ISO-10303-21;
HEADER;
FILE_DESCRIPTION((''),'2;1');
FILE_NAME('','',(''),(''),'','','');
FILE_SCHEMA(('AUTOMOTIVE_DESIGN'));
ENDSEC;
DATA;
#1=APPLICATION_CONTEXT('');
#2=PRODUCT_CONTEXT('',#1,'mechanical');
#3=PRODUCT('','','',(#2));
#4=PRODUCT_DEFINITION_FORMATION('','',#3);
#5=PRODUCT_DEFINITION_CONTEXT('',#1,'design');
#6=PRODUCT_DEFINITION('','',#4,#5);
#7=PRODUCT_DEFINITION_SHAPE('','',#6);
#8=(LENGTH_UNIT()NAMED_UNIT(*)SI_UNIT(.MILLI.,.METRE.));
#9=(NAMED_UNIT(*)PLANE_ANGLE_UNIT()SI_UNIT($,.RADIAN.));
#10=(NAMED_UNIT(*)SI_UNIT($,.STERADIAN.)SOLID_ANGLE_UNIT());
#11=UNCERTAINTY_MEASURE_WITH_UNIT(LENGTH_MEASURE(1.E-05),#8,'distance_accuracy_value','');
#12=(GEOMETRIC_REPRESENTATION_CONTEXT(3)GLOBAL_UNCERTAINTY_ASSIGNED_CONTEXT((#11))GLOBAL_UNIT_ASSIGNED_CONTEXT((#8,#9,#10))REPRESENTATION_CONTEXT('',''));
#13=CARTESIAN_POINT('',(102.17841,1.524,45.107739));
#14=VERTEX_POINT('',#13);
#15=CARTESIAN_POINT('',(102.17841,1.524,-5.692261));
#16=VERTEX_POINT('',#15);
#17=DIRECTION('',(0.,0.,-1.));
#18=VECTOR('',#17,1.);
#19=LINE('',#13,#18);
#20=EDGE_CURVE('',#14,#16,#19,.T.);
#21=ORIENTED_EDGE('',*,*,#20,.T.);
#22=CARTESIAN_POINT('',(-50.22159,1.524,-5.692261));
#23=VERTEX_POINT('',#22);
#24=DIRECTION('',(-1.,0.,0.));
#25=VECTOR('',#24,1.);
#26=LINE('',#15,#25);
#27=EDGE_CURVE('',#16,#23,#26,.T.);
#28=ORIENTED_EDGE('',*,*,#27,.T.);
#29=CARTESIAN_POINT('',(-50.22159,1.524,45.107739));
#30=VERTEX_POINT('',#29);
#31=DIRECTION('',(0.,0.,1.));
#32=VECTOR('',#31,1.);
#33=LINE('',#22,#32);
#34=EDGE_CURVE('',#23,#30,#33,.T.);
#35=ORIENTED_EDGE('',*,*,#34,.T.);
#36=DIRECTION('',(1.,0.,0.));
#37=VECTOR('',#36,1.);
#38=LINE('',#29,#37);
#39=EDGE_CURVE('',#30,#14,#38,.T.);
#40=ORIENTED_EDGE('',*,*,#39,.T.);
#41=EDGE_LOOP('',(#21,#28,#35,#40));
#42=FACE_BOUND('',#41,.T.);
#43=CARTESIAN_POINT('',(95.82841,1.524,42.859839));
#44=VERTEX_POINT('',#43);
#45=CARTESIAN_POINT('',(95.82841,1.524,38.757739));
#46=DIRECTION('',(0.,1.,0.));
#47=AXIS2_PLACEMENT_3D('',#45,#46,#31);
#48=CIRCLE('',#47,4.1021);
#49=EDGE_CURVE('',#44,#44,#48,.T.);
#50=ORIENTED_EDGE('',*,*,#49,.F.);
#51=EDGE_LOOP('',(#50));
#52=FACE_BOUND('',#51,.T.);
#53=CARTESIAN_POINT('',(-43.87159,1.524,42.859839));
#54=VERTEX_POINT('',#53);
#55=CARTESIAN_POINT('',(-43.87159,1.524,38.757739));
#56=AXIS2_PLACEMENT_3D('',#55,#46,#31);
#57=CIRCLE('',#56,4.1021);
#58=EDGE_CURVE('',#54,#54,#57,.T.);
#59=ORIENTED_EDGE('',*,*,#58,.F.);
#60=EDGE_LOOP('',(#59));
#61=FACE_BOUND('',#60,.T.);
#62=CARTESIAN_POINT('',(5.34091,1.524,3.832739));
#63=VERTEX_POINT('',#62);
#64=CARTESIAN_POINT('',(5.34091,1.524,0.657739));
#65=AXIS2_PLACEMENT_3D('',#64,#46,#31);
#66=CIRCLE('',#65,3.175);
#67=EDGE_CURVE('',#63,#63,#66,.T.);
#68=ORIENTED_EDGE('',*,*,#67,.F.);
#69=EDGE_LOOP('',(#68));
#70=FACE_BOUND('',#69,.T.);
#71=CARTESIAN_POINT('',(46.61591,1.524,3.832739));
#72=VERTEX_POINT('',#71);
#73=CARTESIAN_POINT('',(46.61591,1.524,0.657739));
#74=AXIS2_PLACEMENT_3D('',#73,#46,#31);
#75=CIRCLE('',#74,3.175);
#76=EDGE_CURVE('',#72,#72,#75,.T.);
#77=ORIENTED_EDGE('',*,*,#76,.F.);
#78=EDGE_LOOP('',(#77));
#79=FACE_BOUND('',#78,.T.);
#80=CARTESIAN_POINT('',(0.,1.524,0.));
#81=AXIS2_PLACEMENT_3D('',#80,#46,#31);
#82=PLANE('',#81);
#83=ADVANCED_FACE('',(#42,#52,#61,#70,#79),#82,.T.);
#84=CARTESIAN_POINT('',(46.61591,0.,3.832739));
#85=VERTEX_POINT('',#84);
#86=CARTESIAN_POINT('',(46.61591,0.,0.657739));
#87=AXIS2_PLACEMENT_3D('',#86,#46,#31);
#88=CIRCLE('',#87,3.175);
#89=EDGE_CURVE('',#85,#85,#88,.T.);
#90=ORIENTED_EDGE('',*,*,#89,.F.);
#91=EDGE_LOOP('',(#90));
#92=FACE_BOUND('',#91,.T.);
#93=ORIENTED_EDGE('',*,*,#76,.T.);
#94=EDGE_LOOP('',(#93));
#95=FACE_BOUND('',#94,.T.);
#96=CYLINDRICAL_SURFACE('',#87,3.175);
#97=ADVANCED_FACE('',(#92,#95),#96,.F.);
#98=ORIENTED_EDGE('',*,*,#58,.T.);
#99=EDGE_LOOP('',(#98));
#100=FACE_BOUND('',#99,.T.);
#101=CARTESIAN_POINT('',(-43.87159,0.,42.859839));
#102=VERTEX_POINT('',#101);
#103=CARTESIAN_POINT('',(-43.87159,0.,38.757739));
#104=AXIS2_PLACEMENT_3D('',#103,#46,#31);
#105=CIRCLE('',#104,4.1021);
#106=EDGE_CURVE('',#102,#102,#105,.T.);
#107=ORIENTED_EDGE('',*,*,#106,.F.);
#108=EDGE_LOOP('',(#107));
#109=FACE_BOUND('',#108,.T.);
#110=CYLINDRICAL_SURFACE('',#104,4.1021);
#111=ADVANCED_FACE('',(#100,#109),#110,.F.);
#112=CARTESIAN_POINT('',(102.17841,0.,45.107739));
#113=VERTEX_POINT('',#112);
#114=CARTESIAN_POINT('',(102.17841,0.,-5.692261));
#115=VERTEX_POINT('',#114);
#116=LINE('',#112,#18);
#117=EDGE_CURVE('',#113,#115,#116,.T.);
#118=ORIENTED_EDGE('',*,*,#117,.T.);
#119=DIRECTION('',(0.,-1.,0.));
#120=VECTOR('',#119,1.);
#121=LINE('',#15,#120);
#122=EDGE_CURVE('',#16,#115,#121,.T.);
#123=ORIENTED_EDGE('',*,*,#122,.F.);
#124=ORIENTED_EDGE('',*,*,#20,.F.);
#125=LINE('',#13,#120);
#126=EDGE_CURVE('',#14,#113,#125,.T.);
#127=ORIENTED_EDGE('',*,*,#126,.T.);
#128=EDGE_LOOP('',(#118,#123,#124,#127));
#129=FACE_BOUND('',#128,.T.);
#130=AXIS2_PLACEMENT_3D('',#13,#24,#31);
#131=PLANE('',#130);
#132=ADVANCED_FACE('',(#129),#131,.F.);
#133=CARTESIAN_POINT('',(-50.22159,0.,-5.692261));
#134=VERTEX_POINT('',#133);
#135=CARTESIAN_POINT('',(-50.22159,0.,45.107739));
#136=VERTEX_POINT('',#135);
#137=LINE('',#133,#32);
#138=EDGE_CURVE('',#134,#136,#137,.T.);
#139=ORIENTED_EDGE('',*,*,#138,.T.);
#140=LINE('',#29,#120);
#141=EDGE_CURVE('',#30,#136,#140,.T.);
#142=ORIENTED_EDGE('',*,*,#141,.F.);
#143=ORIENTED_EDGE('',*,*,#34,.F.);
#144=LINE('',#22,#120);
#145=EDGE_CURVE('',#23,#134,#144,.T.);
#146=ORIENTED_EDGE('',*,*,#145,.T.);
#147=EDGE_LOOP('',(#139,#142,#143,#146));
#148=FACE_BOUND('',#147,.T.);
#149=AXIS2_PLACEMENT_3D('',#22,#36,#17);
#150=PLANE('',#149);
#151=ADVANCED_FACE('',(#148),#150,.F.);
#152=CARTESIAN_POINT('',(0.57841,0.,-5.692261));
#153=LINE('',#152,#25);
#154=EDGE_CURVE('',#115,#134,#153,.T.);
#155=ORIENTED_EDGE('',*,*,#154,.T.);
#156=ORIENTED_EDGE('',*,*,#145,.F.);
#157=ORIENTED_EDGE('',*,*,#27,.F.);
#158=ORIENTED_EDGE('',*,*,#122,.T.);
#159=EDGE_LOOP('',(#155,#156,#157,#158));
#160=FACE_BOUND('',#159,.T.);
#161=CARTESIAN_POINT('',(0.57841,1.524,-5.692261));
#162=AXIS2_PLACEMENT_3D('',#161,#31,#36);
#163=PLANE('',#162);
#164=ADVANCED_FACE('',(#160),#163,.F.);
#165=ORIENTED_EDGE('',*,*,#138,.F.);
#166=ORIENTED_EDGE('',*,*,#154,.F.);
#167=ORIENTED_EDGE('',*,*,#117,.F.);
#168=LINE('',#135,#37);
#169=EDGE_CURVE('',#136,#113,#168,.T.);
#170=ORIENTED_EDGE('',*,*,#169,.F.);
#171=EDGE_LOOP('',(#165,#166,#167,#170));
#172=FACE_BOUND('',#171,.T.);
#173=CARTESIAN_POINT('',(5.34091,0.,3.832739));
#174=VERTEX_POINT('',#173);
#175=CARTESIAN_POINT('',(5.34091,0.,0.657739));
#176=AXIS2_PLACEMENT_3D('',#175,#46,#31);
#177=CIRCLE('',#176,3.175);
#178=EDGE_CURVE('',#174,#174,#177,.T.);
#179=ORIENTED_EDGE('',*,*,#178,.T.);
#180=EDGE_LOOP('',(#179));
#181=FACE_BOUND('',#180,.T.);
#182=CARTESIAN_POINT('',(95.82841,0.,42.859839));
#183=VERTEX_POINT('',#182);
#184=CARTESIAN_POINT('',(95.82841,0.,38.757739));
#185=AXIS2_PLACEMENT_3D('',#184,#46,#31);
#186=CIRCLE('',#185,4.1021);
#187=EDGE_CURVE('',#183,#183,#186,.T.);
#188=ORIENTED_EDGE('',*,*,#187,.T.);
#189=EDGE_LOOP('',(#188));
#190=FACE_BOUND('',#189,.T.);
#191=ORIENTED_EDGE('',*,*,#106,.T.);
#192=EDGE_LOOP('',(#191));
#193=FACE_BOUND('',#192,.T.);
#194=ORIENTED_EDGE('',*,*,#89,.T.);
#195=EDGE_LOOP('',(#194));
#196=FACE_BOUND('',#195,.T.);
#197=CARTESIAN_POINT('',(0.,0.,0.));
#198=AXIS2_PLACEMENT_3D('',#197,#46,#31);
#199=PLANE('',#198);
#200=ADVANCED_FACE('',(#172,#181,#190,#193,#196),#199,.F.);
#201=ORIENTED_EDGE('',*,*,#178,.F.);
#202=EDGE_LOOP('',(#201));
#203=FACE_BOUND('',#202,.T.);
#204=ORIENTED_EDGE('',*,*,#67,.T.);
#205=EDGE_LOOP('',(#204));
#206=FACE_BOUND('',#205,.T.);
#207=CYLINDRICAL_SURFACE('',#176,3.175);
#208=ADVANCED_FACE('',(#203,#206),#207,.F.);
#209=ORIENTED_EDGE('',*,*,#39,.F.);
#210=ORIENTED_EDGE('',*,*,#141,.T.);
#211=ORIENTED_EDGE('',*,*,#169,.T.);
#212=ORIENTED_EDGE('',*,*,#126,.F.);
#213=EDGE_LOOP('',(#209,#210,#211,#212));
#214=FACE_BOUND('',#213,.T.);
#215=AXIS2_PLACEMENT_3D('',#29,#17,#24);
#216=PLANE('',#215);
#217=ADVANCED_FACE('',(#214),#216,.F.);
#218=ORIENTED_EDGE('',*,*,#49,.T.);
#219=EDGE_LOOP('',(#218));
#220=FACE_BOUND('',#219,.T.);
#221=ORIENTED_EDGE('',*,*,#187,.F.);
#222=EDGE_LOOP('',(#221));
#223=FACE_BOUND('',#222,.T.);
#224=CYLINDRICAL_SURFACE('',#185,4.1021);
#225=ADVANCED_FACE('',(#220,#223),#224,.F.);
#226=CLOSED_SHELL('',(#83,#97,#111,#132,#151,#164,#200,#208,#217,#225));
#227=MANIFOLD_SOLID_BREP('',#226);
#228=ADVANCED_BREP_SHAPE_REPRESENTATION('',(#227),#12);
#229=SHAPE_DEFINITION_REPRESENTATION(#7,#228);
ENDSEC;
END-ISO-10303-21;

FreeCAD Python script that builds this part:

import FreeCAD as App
import Part
import Sketcher

V = App.Vector
Q = App.Units.Quantity


def add_polygon(sketch, points):
    """Adds a closed chain of lines whose ends are joined by coincident constraints."""
    first, n = sketch.GeometryCount, len(points)
    for a, b in zip(points, points[1:] + points[:1]):
        sketch.addGeometry(Part.LineSegment(App.Vector(*a, 0), App.Vector(*b, 0)), False)
    for i in range(n):
        sketch.addConstraint(Sketcher.Constraint("Coincident", first + i, 2, first + (i + 1) % n, 1))

doc = App.newDocument("Part")
params = doc.addObject("Spreadsheet::Sheet", "Params")
for row, (alias, value) in enumerate([
    ("sketch1_width", "6 in"),
    ("sketch1_height", "2 in"),
    ("pad1_length", "0.06 in"),
    ("sketch2_diameter", "0.25 in"),
    ("sketch2_diameter2", "0.323 in"),
], start=1):
    params.set(f"A{row}", alias)
    params.set(f"B{row}", "=" + value)
    params.setAlias(f"B{row}", alias)

body = doc.addObject("PartDesign::Body", "Body")

sketch1 = body.newObject("Sketcher::SketchObject", "Sketch")
sketch1.AttachmentSupport = (doc.getObject("XZ_Plane"), [""])
sketch1.MapMode = "FlatFace"
add_polygon(sketch1, [(-50, 45), (102, 45), (102, -6), (-50, -6)])
sketch1.addConstraint(Sketcher.Constraint("Horizontal", 0))
sketch1.addConstraint(Sketcher.Constraint("Vertical", 1))
sketch1.addConstraint(Sketcher.Constraint("Horizontal", 2))
sketch1.addConstraint(Sketcher.Constraint("Vertical", 3))
sketch1.addConstraint(Sketcher.Constraint("DistanceX", 0, 1, 0, 2, Q("6 in")))
sketch1.addConstraint(Sketcher.Constraint("DistanceY", 1, 2, 1, 1, Q("2 in")))
sketch1.addConstraint(Sketcher.Constraint("DistanceX", -1, 1, 0, 2, Q("102.17841 mm")))
sketch1.addConstraint(Sketcher.Constraint("DistanceY", -1, 1, 0, 2, Q("45.107739 mm")))
sketch1.setExpression("Constraints[8]", "Params.sketch1_width")
sketch1.setExpression("Constraints[9]", "Params.sketch1_height")
pad1 = body.newObject("PartDesign::Pad", "Pad")
pad1.Profile = sketch1
pad1.setExpression("Length", "Params.pad1_length")
pad1.Reversed = True

sketch2 = body.newObject("Sketcher::SketchObject", "Sketch001")
sketch2.AttachmentSupport = (doc.getObject("XZ_Plane"), [""])
sketch2.MapMode = "FlatFace"
sketch2.AttachmentOffset = App.Placement(V(0, 0, -0.06 * 25.4), App.Rotation())
sketch2.addGeometry(Part.Circle(V(-43.9, 38.8, 0), V(0, 0, 1), 4.1), False)
sketch2.addGeometry(Part.Circle(V(95.8, 38.8, 0), V(0, 0, 1), 4.1), False)
sketch2.addGeometry(Part.Circle(V(46.6, 0.7, 0), V(0, 0, 1), 3.2), False)
sketch2.addGeometry(Part.Circle(V(5.3, 0.7, 0), V(0, 0, 1), 3.2), False)
sketch2.addConstraint(Sketcher.Constraint("Equal", 0, 1))
sketch2.addConstraint(Sketcher.Constraint("Equal", 2, 3))
sketch2.addConstraint(Sketcher.Constraint("Horizontal", 0, 3, 1, 3))
sketch2.addConstraint(Sketcher.Constraint("Horizontal", 2, 3, 3, 3))
sketch2.addConstraint(Sketcher.Constraint("Diameter", 2, Q("0.25 in")))
sketch2.addConstraint(Sketcher.Constraint("Diameter", 0, Q("0.323 in")))
sketch2.addConstraint(Sketcher.Constraint("DistanceX", 0, 3, 1, 3, Q("5.5 in")))
sketch2.addConstraint(Sketcher.Constraint("DistanceY", 2, 3, 1, 3, Q("1.5 in")))
sketch2.addConstraint(Sketcher.Constraint("DistanceX", 2, 3, 1, 3, Q("1.9375 in")))
sketch2.addConstraint(Sketcher.Constraint("DistanceX", 3, 3, 2, 3, Q("1.625 in")))
sketch2.addConstraint(Sketcher.Constraint("DistanceX", 0, 3, -1, 1, Q("43.87159 mm")))
sketch2.addConstraint(Sketcher.Constraint("DistanceY", -1, 1, 0, 3, Q("38.757739 mm")))
sketch2.setExpression("Constraints[4]", "Params.sketch2_diameter")
sketch2.setExpression("Constraints[5]", "Params.sketch2_diameter2")
pocket1 = body.newObject("PartDesign::Pocket", "Pocket")
pocket1.Profile = sketch2
pocket1.Type = "ThroughAll"
pocket1.Reversed = True

doc.recompute()
